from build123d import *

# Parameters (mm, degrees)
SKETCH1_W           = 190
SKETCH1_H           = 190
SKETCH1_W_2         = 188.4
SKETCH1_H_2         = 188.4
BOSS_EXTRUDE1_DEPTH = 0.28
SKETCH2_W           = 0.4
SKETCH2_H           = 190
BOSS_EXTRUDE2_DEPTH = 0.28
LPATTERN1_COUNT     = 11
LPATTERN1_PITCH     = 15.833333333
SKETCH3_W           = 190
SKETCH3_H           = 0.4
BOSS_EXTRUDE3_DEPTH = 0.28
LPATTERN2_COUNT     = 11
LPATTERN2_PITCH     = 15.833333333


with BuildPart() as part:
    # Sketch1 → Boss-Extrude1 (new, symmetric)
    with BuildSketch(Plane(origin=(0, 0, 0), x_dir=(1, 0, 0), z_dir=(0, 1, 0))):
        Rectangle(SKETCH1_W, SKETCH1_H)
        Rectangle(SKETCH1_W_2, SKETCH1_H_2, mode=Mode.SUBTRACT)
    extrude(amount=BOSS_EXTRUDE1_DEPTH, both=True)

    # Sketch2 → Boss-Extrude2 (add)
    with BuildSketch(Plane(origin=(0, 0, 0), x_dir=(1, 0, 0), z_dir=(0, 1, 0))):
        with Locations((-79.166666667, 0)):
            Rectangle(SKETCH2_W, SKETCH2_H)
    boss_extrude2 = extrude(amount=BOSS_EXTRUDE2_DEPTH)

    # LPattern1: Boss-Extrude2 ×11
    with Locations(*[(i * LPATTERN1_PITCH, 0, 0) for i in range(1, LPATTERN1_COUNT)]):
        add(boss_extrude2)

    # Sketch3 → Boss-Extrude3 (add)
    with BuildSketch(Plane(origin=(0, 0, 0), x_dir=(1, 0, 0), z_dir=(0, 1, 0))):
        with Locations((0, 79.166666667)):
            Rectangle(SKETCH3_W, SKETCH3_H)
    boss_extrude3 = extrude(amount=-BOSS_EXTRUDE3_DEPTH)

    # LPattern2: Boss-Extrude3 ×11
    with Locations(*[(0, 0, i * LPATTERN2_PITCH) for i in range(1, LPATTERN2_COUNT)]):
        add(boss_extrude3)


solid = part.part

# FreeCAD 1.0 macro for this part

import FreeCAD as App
import Part
import Sketcher


def add_polygon(sketch, points):
    """Adds a closed chain of lines whose ends are joined by coincident constraints."""
    first, n = sketch.GeometryCount, len(points)
    for a, b in zip(points, points[1:] + points[:1]):
        sketch.addGeometry(Part.LineSegment(App.Vector(*a, 0), App.Vector(*b, 0)), False)
    for i in range(n):
        sketch.addConstraint(Sketcher.Constraint("Coincident", first + i, 2, first + (i + 1) % n, 1))

doc = App.newDocument("Part")
body = doc.addObject("PartDesign::Body", "Body")

# Sketch on XZ plane
sketch1 = body.newObject("Sketcher::SketchObject", "Sketch")
sketch1.AttachmentSupport = (doc.getObject("XZ_Plane"), [""])
sketch1.MapMode = "FlatFace"
add_polygon(sketch1, [(-95, -95), (-95, 95), (95, 95), (95, -95)])  # lines 0-3
add_polygon(sketch1, [(94.2, 94.2), (-94.2, 94.2), (-94.2, -94.2), (94.2, -94.2)])  # lines 4-7
sketch1.addConstraint([
    Sketcher.Constraint("Vertical", 0),
    Sketcher.Constraint("Horizontal", 1),
    Sketcher.Constraint("Vertical", 2),
    Sketcher.Constraint("Horizontal", 3),
    Sketcher.Constraint("Horizontal", 4),
    Sketcher.Constraint("Vertical", 5),
    Sketcher.Constraint("Horizontal", 6),
    Sketcher.Constraint("Vertical", 7),
    Sketcher.Constraint("Symmetric", 0, 2, 2, 2, -1, 1),
    Sketcher.Constraint("Symmetric", 4, 2, 6, 2, -1, 1),
    Sketcher.Constraint("Equal", 3, 0),
    Sketcher.Constraint("Equal", 6, 5),
    Sketcher.Constraint("DistanceX", 1, 1, 1, 2, 190.0),
    Sketcher.Constraint("DistanceX", 4, 2, 4, 1, 188.4),
])
pad1 = body.newObject("PartDesign::Pad", "Pad")
pad1.Profile = sketch1
pad1.Length = 0.56
pad1.Midplane = True

# Sketch on XZ plane
sketch2 = body.newObject("Sketcher::SketchObject", "Sketch001")
sketch2.AttachmentSupport = (doc.getObject("XZ_Plane"), [""])
sketch2.MapMode = "FlatFace"
add_polygon(sketch2, [(-79.366667, -95), (-79.366667, 95), (-78.966667, 95), (-78.966667, -95)])  # lines 0-3
sketch2.addConstraint([
    Sketcher.Constraint("Vertical", 0),
    Sketcher.Constraint("Horizontal", 1),
    Sketcher.Constraint("Vertical", 2),
    Sketcher.Constraint("Horizontal", 3),
    Sketcher.Constraint("DistanceY", 0, 1, 0, 2, 190.0),
    Sketcher.Constraint("DistanceX", 1, 1, 1, 2, 0.4),
    Sketcher.Constraint("DistanceY", -1, 1, 0, 2, 95.0),
    Sketcher.Constraint("DistanceX", 0, 2, -1, 1, 79.366667),
])
pad2 = body.newObject("PartDesign::Pad", "Pad001")
pad2.Profile = sketch2
pad2.Length = 0.28
pad2.Reversed = True
doc.recompute()

linearpattern = body.newObject("PartDesign::LinearPattern", "LinearPattern")
linearpattern.Originals = [pad2]
linearpattern.Direction = (doc.getObject("X_Axis"), [""])
linearpattern.Mode = "offset"
linearpattern.Offset = 15.833333
linearpattern.Occurrences = 11
body.Tip = linearpattern

# Sketch on XZ plane
sketch3 = body.newObject("Sketcher::SketchObject", "Sketch002")
sketch3.AttachmentSupport = (doc.getObject("XZ_Plane"), [""])
sketch3.MapMode = "FlatFace"
add_polygon(sketch3, [(-95, -79.366667), (-95, -78.966667), (95, -78.966667), (95, -79.366667)])  # lines 0-3
sketch3.addConstraint([
    Sketcher.Constraint("Vertical", 0),
    Sketcher.Constraint("Horizontal", 1),
    Sketcher.Constraint("Vertical", 2),
    Sketcher.Constraint("Horizontal", 3),
    Sketcher.Constraint("DistanceX", 1, 1, 1, 2, 190.0),
    Sketcher.Constraint("DistanceY", 0, 1, 0, 2, 0.4),
    Sketcher.Constraint("DistanceX", 0, 2, -1, 1, 95.0),
    Sketcher.Constraint("DistanceY", 0, 2, -1, 1, 78.966667),
])
pad3 = body.newObject("PartDesign::Pad", "Pad002")
pad3.Profile = sketch3
pad3.Length = 0.28
doc.recompute()

linearpattern2 = body.newObject("PartDesign::LinearPattern", "LinearPattern001")
linearpattern2.Originals = [pad3]
linearpattern2.Direction = (doc.getObject("Z_Axis"), [""])
linearpattern2.Mode = "offset"
linearpattern2.Offset = 15.833333
linearpattern2.Occurrences = 11
body.Tip = linearpattern2

doc.recompute()
